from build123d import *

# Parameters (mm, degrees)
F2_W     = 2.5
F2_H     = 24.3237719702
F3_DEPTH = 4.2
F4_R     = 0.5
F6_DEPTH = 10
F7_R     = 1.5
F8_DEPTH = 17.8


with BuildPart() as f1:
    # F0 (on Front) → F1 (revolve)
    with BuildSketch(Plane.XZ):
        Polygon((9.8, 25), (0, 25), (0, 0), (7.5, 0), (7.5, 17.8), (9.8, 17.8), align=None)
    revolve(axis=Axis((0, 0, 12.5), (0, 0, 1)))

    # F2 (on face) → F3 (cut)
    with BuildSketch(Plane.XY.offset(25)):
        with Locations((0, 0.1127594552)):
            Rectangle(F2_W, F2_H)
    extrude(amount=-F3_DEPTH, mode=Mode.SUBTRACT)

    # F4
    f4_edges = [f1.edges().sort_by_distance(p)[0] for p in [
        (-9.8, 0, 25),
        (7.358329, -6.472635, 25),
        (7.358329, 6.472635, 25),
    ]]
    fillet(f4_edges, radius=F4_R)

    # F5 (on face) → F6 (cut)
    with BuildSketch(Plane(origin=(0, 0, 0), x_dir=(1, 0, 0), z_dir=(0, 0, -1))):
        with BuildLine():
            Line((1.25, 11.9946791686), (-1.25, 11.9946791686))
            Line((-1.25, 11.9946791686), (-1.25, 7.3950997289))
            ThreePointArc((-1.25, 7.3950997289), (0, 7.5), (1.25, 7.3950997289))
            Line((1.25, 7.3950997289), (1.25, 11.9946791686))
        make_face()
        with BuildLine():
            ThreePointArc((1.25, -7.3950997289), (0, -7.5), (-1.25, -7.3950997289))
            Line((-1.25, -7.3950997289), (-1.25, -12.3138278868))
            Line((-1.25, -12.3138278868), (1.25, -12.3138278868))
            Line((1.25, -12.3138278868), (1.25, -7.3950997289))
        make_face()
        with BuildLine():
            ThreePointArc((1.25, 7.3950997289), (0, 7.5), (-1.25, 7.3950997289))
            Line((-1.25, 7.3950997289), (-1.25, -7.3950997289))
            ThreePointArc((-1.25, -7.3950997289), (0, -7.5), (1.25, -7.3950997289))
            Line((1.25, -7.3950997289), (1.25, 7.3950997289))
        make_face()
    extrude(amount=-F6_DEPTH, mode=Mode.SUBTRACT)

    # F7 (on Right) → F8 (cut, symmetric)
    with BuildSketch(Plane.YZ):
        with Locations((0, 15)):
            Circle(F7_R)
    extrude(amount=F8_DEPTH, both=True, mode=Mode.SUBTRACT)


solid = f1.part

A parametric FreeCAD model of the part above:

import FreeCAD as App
import Part
import Sketcher


def edges_at(feature, points):
    """Names of the edges that pass closest to the given points."""
    edges = feature.Shape.Edges
    near = lambda p: min(range(len(edges)), key=lambda i: edges[i].distToShape(Part.Vertex(*p))[0])
    return sorted({f"Edge{near(p) + 1}" for p in points})


def add_polygon(sketch, points):
    """Adds a closed chain of lines whose ends are joined by coincident constraints."""
    first, n = sketch.GeometryCount, len(points)
    for a, b in zip(points, points[1:] + points[:1]):
        sketch.addGeometry(Part.LineSegment(App.Vector(*a, 0), App.Vector(*b, 0)), False)
    for i in range(n):
        sketch.addConstraint(Sketcher.Constraint("Coincident", first + i, 2, first + (i + 1) % n, 1))

doc = App.newDocument("Part")
body = doc.addObject("PartDesign::Body", "Body")

# Sketch on XZ plane
sketch1 = doc.addObject("Sketcher::SketchObject", "Sketch")
body.addObject(sketch1)
sketch1.AttachmentSupport = (doc.XZ_Plane, [""])
sketch1.MapMode = "FlatFace"
add_polygon(sketch1, [(9.8, 25), (0, 25), (0, 0), (7.5, 0), (7.5, 17.8), (9.8, 17.8)])  # lines 0-5
sketch1.addConstraint([
    Sketcher.Constraint("Horizontal", 0),
    Sketcher.Constraint("Vertical", 1),
    Sketcher.Constraint("Horizontal", 2),
    Sketcher.Constraint("Vertical", 3),
    Sketcher.Constraint("Horizontal", 4),
    Sketcher.Constraint("Vertical", 5),
    Sketcher.Constraint("Coincident", 1, 2, -1, 1),
    Sketcher.Constraint("DistanceY", 1, 2, 1, 1, 25.0),
    Sketcher.Constraint("DistanceX", 0, 2, 0, 1, 9.8),
    Sketcher.Constraint("DistanceX", 2, 1, 2, 2, 7.5),
    Sketcher.Constraint("DistanceY", 3, 1, 3, 2, 17.8),
])
revolution = doc.addObject("PartDesign::Revolution", "Revolution")
body.addObject(revolution)
revolution.Profile = sketch1
revolution.ReferenceAxis = (sketch1, ["V_Axis"])
revolution.Angle = 360

# Sketch on XY plane
sketch2 = doc.addObject("Sketcher::SketchObject", "Sketch001")
body.addObject(sketch2)
sketch2.AttachmentSupport = (doc.XY_Plane, [""])
sketch2.MapMode = "FlatFace"
sketch2.AttachmentOffset = App.Placement(App.Vector(0, 0, 25), App.Rotation())
add_polygon(sketch2, [(-1.25, 12.274645), (-1.25, -12.049127), (1.25, -12.049127), (1.25, 12.274645)])  # lines 0-3
sketch2.addConstraint([
    Sketcher.Constraint("Vertical", 0),
    Sketcher.Constraint("Horizontal", 1),
    Sketcher.Constraint("Vertical", 2),
    Sketcher.Constraint("Horizontal", 3),
    Sketcher.Constraint("DistanceX", 1, 1, 1, 2, 2.5),
    Sketcher.Constraint("DistanceX", 0, 2, -1, 1, 1.25),
    Sketcher.Constraint("DistanceY", 0, 2, 0, 1, 24.323772),
    Sketcher.Constraint("DistanceY", 0, 2, -1, 1, 12.049127),
])
pocket1 = doc.addObject("PartDesign::Pocket", "Pocket")
body.addObject(pocket1)
pocket1.Profile = sketch2
pocket1.Length = 4.2
doc.recompute()

fillet = doc.addObject("PartDesign::Fillet", "Fillet")
body.addObject(fillet)
fillet.Base = (pocket1, edges_at(pocket1, [(-9.8, 0, 25), (7.358, -6.473, 25), (7.358, 6.473, 25)]))
fillet.Radius = 0.5

# Sketch on XY plane
sketch3 = doc.addObject("Sketcher::SketchObject", "Sketch002")
body.addObject(sketch3)
sketch3.AttachmentSupport = (doc.XY_Plane, [""])
sketch3.MapMode = "FlatFace"
add_polygon(sketch3, [(1.25, -11.994679), (-1.25, -11.994679), (-1.25, 12.313828), (1.25, 12.313828)])  # lines 0-3
sketch3.addConstraint([
    Sketcher.Constraint("Horizontal", 0),
    Sketcher.Constraint("Vertical", 1),
    Sketcher.Constraint("Horizontal", 2),
    Sketcher.Constraint("Vertical", 3),
    Sketcher.Constraint("DistanceX", 0, 2, 0, 1, 2.5),
    Sketcher.Constraint("DistanceX", 0, 2, -1, 1, 1.25),
    Sketcher.Constraint("DistanceY", 1, 1, 1, 2, 24.308507),
    Sketcher.Constraint("DistanceY", 0, 2, -1, 1, 11.994679),
])
pocket2 = doc.addObject("PartDesign::Pocket", "Pocket001")
body.addObject(pocket2)
pocket2.Profile = sketch3
pocket2.Length = 10
pocket2.Reversed = True

# Sketch on YZ plane
sketch4 = doc.addObject("Sketcher::SketchObject", "Sketch003")
body.addObject(sketch4)
sketch4.AttachmentSupport = (doc.YZ_Plane, [""])
sketch4.MapMode = "FlatFace"
sketch4.addGeometry(Part.Circle(App.Vector(0, 15, 0), App.Vector(0, 0, 1), 1.5), False)
sketch4.addConstraint([
    Sketcher.Constraint("PointOnObject", 0, 3, -2),
    Sketcher.Constraint("Diameter", 0, 3.0),
    Sketcher.Constraint("DistanceY", -1, 1, 0, 3, 15.0),
])
pocket3 = doc.addObject("PartDesign::Pocket", "Pocket002")
body.addObject(pocket3)
pocket3.Profile = sketch4
pocket3.Length = 35.6
pocket3.Midplane = True

doc.recompute()
